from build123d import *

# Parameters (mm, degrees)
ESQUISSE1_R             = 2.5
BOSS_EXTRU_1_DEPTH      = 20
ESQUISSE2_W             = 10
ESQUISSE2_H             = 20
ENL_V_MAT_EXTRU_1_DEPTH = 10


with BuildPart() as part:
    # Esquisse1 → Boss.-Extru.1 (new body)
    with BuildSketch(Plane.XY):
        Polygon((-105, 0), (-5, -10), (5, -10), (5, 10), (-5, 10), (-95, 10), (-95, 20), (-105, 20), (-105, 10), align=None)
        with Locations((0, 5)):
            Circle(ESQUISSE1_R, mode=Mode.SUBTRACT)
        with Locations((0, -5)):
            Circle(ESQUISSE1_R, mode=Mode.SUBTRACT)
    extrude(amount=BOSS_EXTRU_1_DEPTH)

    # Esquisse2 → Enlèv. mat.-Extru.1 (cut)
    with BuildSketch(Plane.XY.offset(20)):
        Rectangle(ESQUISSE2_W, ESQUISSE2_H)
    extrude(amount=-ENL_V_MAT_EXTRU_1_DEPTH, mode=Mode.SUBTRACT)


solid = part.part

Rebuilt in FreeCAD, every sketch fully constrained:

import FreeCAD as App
import Part
import Sketcher
from FreeCAD import Vector


def add_polygon(sketch, points):
    """Adds a closed chain of lines whose ends are joined by coincident constraints."""
    first, n = sketch.GeometryCount, len(points)
    for a, b in zip(points, points[1:] + points[:1]):
        sketch.addGeometry(Part.LineSegment(App.Vector(*a, 0), App.Vector(*b, 0)), False)
    for i in range(n):
        sketch.addConstraint(Sketcher.Constraint("Coincident", first + i, 2, first + (i + 1) % n, 1))

doc = App.newDocument("Part")
body = doc.addObject("PartDesign::Body", "Body")

# Sketch on XY plane
sketch1 = body.newObject("Sketcher::SketchObject", "Sketch")
sketch1.AttachmentSupport = (doc.getObject("XY_Plane"), [""])
sketch1.MapMode = "FlatFace"
add_polygon(sketch1, [(-105, 0), (-5, -10), (5, -10), (5, 10), (-95, 10), (-95, 20), (-105, 20)])  # lines 0-6
sketch1.addGeometry(Part.Circle(Vector(0, -5, 0), Vector(0, 0, 1), 2.5), False)  # 7
sketch1.addGeometry(Part.Circle(Vector(0, 5, 0), Vector(0, 0, 1), 2.5), False)  # 8
sketch1.addConstraint(Sketcher.Constraint("Horizontal", 1))
sketch1.addConstraint(Sketcher.Constraint("Vertical", 2))
sketch1.addConstraint(Sketcher.Constraint("Horizontal", 3))
sketch1.addConstraint(Sketcher.Constraint("Vertical", 4))
sketch1.addConstraint(Sketcher.Constraint("Horizontal", 5))
sketch1.addConstraint(Sketcher.Constraint("Vertical", 6))
sketch1.addConstraint(Sketcher.Constraint("Equal", 7, 8))
sketch1.addConstraint(Sketcher.Constraint("Symmetric", 7, 3, 8, 3, -1, 1))
sketch1.addConstraint(Sketcher.Constraint("Symmetric", 0, 2, 2, 2, -1, 1))
sketch1.addConstraint(Sketcher.Constraint("PointOnObject", 7, 3, -2))
sketch1.addConstraint(Sketcher.Constraint("PointOnObject", 6, 2, -1))
sketch1.addConstraint(Sketcher.Constraint("Equal", 1, 5))
sketch1.addConstraint(Sketcher.Constraint("Equal", 5, 4))
sketch1.addConstraint(Sketcher.Constraint("Equal", 2, 6))
sketch1.addConstraint(Sketcher.Constraint("Diameter", 7, 5.0))
sketch1.addConstraint(Sketcher.Constraint("DistanceX", 1, 1, 1, 2, 10.0))
sketch1.addConstraint(Sketcher.Constraint("DistanceX", 3, 2, 3, 1, 100.0))
sketch1.addConstraint(Sketcher.Constraint("DistanceY", 7, 3, -1, 1, 5.0))
pad1 = body.newObject("PartDesign::Pad", "Pad")
pad1.Profile = sketch1
pad1.Length = 20

# Sketch on XY plane
sketch2 = body.newObject("Sketcher::SketchObject", "Sketch001")
sketch2.AttachmentSupport = (doc.getObject("XY_Plane"), [""])
sketch2.MapMode = "FlatFace"
sketch2.AttachmentOffset = App.Placement(Vector(0, 0, 20), App.Rotation())
add_polygon(sketch2, [(-5, 10), (-5, -10), (5, -10), (5, 10)])  # lines 0-3
sketch2.addConstraint(Sketcher.Constraint("Vertical", 0))
sketch2.addConstraint(Sketcher.Constraint("Horizontal", 1))
sketch2.addConstraint(Sketcher.Constraint("Vertical", 2))
sketch2.addConstraint(Sketcher.Constraint("Horizontal", 3))
sketch2.addConstraint(Sketcher.Constraint("Symmetric", 0, 2, 2, 2, -1, 1))
sketch2.addConstraint(Sketcher.Constraint("DistanceX", 1, 1, 1, 2, 10.0))
sketch2.addConstraint(Sketcher.Constraint("DistanceY", 0, 2, 0, 1, 20.0))
pocket1 = body.newObject("PartDesign::Pocket", "Pocket")
pocket1.Profile = sketch2
pocket1.Length = 10

doc.recompute()
